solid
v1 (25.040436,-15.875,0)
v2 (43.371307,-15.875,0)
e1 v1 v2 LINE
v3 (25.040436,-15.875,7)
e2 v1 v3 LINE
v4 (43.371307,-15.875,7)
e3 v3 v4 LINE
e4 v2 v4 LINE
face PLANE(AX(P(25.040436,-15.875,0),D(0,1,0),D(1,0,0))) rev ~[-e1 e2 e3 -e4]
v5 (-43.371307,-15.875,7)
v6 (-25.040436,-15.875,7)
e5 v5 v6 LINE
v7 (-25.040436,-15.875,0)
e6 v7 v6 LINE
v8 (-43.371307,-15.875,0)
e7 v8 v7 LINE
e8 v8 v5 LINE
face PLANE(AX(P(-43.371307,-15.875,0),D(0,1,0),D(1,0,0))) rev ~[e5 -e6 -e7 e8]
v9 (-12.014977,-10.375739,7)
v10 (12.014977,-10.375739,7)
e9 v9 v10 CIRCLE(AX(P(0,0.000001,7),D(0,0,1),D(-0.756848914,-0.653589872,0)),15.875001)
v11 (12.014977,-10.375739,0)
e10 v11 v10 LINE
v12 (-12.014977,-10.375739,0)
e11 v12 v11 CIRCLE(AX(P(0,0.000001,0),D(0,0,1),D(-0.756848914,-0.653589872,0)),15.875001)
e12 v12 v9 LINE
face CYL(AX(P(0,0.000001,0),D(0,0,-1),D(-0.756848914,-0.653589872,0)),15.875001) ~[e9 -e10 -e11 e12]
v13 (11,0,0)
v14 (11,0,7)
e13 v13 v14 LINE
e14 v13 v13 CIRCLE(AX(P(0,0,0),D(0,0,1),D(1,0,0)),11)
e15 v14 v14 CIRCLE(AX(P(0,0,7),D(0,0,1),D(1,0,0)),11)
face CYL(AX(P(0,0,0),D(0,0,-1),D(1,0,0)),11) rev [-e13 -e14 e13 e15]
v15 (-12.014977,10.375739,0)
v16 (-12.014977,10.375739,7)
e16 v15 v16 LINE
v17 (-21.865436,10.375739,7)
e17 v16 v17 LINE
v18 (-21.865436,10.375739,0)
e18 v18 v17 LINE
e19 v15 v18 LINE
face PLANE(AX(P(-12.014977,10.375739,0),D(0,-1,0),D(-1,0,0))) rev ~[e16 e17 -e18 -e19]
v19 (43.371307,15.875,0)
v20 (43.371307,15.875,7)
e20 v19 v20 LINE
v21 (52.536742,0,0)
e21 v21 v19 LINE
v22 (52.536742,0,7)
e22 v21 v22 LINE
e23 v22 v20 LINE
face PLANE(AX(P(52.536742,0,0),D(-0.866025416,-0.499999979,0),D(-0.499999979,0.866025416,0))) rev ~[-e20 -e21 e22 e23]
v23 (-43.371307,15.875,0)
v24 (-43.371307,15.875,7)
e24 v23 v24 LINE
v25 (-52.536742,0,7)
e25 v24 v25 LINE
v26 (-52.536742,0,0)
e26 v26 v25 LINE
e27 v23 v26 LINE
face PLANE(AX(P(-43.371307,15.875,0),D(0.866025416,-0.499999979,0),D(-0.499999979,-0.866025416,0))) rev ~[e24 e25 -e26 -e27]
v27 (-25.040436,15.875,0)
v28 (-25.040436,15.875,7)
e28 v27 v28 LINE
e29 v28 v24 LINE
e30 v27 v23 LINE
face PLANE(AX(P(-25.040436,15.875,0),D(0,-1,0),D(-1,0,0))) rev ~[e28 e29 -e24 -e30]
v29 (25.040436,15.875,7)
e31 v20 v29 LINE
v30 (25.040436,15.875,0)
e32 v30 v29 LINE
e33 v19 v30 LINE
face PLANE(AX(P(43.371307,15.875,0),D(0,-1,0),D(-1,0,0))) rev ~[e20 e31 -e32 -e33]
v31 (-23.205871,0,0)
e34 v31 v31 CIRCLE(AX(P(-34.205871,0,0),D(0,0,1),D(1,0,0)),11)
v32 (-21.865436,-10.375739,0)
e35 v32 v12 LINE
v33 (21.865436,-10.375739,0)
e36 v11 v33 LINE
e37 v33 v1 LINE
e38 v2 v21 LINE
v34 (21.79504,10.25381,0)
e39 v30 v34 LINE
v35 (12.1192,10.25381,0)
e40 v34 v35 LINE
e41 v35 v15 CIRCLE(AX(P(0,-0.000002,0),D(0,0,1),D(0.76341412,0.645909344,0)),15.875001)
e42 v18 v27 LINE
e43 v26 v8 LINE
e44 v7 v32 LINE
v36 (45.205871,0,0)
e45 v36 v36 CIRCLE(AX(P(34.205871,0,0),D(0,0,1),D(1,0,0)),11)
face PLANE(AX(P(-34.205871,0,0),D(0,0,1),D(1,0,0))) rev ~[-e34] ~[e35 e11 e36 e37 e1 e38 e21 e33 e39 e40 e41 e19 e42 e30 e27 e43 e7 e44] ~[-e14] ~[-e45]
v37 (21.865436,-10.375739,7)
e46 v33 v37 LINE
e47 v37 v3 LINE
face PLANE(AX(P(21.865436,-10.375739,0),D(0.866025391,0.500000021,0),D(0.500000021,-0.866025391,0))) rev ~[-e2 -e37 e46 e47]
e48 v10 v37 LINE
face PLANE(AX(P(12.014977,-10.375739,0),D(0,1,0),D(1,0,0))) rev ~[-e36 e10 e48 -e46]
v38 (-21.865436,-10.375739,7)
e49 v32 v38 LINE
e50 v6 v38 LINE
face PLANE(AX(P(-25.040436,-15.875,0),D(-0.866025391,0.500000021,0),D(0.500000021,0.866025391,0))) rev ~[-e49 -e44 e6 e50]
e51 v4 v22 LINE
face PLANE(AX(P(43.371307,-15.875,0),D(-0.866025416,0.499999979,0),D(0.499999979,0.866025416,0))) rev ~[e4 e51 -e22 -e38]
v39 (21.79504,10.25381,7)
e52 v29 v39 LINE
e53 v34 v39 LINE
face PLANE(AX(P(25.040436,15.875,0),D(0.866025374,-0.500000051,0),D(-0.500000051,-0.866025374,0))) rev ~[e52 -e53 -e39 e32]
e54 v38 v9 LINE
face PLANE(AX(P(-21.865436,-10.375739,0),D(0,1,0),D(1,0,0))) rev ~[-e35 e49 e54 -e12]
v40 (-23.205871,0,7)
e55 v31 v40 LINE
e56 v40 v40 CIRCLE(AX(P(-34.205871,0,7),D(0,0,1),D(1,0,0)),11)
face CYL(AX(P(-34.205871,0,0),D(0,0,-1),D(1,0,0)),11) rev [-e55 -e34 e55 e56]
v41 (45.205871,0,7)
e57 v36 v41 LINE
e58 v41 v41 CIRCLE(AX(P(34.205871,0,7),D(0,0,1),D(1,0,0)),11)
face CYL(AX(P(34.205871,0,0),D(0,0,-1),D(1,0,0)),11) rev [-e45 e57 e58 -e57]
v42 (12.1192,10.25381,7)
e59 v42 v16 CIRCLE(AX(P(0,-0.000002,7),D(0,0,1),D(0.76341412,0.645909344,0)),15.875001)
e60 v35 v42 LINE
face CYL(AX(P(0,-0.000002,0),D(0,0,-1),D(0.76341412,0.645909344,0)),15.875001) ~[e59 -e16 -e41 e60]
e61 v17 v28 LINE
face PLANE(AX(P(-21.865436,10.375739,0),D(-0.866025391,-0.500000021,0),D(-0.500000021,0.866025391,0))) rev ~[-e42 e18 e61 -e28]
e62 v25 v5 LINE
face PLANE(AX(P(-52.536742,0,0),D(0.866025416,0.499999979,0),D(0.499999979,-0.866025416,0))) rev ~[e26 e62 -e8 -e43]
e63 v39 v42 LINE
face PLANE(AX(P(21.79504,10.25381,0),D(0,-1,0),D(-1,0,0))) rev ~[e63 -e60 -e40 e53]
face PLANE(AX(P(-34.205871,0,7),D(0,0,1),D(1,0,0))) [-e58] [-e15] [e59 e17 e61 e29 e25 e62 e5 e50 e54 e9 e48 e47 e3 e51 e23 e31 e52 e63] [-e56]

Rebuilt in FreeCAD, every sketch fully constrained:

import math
import FreeCAD as App
import Part
import Sketcher

V = App.Vector
Q = App.Units.Quantity

doc = App.newDocument("Part")
body = doc.addObject("PartDesign::Body", "Body")

# Sketch on XY plane
sketch1 = body.newObject("Sketcher::SketchObject", "Sketch")
sketch1.AttachmentSupport = (doc.getObject("XY_Plane"), [""])
sketch1.MapMode = "FlatFace"
sketch1.addGeometry([
    Part.ArcOfCircle(Part.Circle(V(0, 0, 0), V(0, 0, 1), 16), math.radians(-139), math.radians(-41)),  # 0
    Part.LineSegment(V(12, -10, 0), V(22, -10, 0)),  # 1
    Part.LineSegment(V(22, -10, 0), V(25, -16, 0)),  # 2
    Part.LineSegment(V(25, -16, 0), V(43, -16, 0)),  # 3
    Part.LineSegment(V(43, -16, 0), V(53, 0, 0)),  # 4
    Part.LineSegment(V(53, 0, 0), V(43, 16, 0)),  # 5
    Part.LineSegment(V(43, 16, 0), V(25, 16, 0)),  # 6
    Part.LineSegment(V(25, 16, 0), V(22, 10, 0)),  # 7
    Part.LineSegment(V(22, 10, 0), V(12, 10, 0)),  # 8
    Part.ArcOfCircle(Part.Circle(V(0, 0, 0), V(0, 0, 1), 16), math.radians(40), math.radians(139)),  # 9
    Part.LineSegment(V(-12, 10, 0), V(-22, 10, 0)),  # 10
    Part.LineSegment(V(-22, 10, 0), V(-25, 16, 0)),  # 11
    Part.LineSegment(V(-25, 16, 0), V(-43, 16, 0)),  # 12
    Part.LineSegment(V(-43, 16, 0), V(-53, 0, 0)),  # 13
    Part.LineSegment(V(-53, 0, 0), V(-43, -16, 0)),  # 14
    Part.LineSegment(V(-43, -16, 0), V(-25, -16, 0)),  # 15
    Part.LineSegment(V(-25, -16, 0), V(-22, -10, 0)),  # 16
    Part.LineSegment(V(-22, -10, 0), V(-12, -10, 0)),  # 17
    Part.Circle(V(-34, 0, 0), V(0, 0, 1), 11),  # 18
    Part.Circle(V(0, 0, 0), V(0, 0, 1), 11),  # 19
    Part.Circle(V(34, 0, 0), V(0, 0, 1), 11),  # 20
], False)
sketch1.addConstraint([
    Sketcher.Constraint("Coincident", 0, 2, 1, 1),
    Sketcher.Constraint("Coincident", 1, 2, 2, 1),
    Sketcher.Constraint("Coincident", 2, 2, 3, 1),
    Sketcher.Constraint("Coincident", 3, 2, 4, 1),
    Sketcher.Constraint("Coincident", 4, 2, 5, 1),
    Sketcher.Constraint("Coincident", 5, 2, 6, 1),
    Sketcher.Constraint("Coincident", 6, 2, 7, 1),
    Sketcher.Constraint("Coincident", 7, 2, 8, 1),
    Sketcher.Constraint("Coincident", 8, 2, 9, 1),
    Sketcher.Constraint("Coincident", 9, 2, 10, 1),
    Sketcher.Constraint("Coincident", 10, 2, 11, 1),
    Sketcher.Constraint("Coincident", 11, 2, 12, 1),
    Sketcher.Constraint("Coincident", 12, 2, 13, 1),
    Sketcher.Constraint("Coincident", 13, 2, 14, 1),
    Sketcher.Constraint("Coincident", 14, 2, 15, 1),
    Sketcher.Constraint("Coincident", 15, 2, 16, 1),
    Sketcher.Constraint("Coincident", 16, 2, 17, 1),
    Sketcher.Constraint("Coincident", 17, 2, 0, 1),
    Sketcher.Constraint("Horizontal", 1),
    Sketcher.Constraint("Horizontal", 3),
    Sketcher.Constraint("Horizontal", 6),
    Sketcher.Constraint("Horizontal", 8),
    Sketcher.Constraint("Horizontal", 10),
    Sketcher.Constraint("Horizontal", 12),
    Sketcher.Constraint("Horizontal", 15),
    Sketcher.Constraint("Horizontal", 17),
    Sketcher.Constraint("Coincident", 0, 3, -1, 1),
    Sketcher.Constraint("Coincident", 9, 3, -1, 1),
    Sketcher.Constraint("Coincident", 19, 3, -1, 1),
    Sketcher.Constraint("Equal", 0, 9),
    Sketcher.Constraint("Equal", 18, 19),
    Sketcher.Constraint("Equal", 19, 20),
    Sketcher.Constraint("Symmetric", 18, 3, 20, 3, -1, 1),
    Sketcher.Constraint("Symmetric", 1, 2, 10, 2, -1, 1),
    Sketcher.Constraint("Symmetric", 2, 2, 11, 2, -1, 1),
    Sketcher.Constraint("Symmetric", 4, 2, 13, 2, -1, 1),
    Sketcher.Constraint("Symmetric", 5, 2, 14, 2, -1, 1),
    Sketcher.Constraint("Symmetric", 6, 2, 11, 2, -2),
    Sketcher.Constraint("Symmetric", 1, 2, 16, 2, -2),
    Sketcher.Constraint("PointOnObject", 18, 3, -1),
    Sketcher.Constraint("PointOnObject", 4, 2, -1),
    Sketcher.Constraint("Parallel", 2, 5),
    Sketcher.Constraint("Parallel", 4, 7),
    Sketcher.Constraint("Parallel", 7, 13),
    Sketcher.Constraint("Parallel", 13, 16),
    Sketcher.Constraint("Vertical", 3, 2, 5, 2),
    Sketcher.Constraint("Angle", 2, Q("-59.999999 deg")),
    Sketcher.Constraint("Radius", 0, Q("0.625 in")),
    Sketcher.Constraint("Distance", 2, Q("0.25 in")),
    Sketcher.Constraint("Diameter", 18, 22.0),
    Sketcher.Constraint("DistanceY", 3, 2, 5, 2, Q("1.25 in")),
    Sketcher.Constraint("DistanceX", 1, 1, 1, 2, 9.850459),
    Sketcher.Constraint("DistanceX", 3, 1, 3, 2, 18.330871),
    Sketcher.Constraint("DistanceX", 8, 2, 8, 1, 9.67584),
    Sketcher.Constraint("DistanceX", 18, 3, -1, 1, 34.205871),
])
pad1 = body.newObject("PartDesign::Pad", "Pad")
pad1.Profile = sketch1
pad1.Length = 7

doc.recompute()
